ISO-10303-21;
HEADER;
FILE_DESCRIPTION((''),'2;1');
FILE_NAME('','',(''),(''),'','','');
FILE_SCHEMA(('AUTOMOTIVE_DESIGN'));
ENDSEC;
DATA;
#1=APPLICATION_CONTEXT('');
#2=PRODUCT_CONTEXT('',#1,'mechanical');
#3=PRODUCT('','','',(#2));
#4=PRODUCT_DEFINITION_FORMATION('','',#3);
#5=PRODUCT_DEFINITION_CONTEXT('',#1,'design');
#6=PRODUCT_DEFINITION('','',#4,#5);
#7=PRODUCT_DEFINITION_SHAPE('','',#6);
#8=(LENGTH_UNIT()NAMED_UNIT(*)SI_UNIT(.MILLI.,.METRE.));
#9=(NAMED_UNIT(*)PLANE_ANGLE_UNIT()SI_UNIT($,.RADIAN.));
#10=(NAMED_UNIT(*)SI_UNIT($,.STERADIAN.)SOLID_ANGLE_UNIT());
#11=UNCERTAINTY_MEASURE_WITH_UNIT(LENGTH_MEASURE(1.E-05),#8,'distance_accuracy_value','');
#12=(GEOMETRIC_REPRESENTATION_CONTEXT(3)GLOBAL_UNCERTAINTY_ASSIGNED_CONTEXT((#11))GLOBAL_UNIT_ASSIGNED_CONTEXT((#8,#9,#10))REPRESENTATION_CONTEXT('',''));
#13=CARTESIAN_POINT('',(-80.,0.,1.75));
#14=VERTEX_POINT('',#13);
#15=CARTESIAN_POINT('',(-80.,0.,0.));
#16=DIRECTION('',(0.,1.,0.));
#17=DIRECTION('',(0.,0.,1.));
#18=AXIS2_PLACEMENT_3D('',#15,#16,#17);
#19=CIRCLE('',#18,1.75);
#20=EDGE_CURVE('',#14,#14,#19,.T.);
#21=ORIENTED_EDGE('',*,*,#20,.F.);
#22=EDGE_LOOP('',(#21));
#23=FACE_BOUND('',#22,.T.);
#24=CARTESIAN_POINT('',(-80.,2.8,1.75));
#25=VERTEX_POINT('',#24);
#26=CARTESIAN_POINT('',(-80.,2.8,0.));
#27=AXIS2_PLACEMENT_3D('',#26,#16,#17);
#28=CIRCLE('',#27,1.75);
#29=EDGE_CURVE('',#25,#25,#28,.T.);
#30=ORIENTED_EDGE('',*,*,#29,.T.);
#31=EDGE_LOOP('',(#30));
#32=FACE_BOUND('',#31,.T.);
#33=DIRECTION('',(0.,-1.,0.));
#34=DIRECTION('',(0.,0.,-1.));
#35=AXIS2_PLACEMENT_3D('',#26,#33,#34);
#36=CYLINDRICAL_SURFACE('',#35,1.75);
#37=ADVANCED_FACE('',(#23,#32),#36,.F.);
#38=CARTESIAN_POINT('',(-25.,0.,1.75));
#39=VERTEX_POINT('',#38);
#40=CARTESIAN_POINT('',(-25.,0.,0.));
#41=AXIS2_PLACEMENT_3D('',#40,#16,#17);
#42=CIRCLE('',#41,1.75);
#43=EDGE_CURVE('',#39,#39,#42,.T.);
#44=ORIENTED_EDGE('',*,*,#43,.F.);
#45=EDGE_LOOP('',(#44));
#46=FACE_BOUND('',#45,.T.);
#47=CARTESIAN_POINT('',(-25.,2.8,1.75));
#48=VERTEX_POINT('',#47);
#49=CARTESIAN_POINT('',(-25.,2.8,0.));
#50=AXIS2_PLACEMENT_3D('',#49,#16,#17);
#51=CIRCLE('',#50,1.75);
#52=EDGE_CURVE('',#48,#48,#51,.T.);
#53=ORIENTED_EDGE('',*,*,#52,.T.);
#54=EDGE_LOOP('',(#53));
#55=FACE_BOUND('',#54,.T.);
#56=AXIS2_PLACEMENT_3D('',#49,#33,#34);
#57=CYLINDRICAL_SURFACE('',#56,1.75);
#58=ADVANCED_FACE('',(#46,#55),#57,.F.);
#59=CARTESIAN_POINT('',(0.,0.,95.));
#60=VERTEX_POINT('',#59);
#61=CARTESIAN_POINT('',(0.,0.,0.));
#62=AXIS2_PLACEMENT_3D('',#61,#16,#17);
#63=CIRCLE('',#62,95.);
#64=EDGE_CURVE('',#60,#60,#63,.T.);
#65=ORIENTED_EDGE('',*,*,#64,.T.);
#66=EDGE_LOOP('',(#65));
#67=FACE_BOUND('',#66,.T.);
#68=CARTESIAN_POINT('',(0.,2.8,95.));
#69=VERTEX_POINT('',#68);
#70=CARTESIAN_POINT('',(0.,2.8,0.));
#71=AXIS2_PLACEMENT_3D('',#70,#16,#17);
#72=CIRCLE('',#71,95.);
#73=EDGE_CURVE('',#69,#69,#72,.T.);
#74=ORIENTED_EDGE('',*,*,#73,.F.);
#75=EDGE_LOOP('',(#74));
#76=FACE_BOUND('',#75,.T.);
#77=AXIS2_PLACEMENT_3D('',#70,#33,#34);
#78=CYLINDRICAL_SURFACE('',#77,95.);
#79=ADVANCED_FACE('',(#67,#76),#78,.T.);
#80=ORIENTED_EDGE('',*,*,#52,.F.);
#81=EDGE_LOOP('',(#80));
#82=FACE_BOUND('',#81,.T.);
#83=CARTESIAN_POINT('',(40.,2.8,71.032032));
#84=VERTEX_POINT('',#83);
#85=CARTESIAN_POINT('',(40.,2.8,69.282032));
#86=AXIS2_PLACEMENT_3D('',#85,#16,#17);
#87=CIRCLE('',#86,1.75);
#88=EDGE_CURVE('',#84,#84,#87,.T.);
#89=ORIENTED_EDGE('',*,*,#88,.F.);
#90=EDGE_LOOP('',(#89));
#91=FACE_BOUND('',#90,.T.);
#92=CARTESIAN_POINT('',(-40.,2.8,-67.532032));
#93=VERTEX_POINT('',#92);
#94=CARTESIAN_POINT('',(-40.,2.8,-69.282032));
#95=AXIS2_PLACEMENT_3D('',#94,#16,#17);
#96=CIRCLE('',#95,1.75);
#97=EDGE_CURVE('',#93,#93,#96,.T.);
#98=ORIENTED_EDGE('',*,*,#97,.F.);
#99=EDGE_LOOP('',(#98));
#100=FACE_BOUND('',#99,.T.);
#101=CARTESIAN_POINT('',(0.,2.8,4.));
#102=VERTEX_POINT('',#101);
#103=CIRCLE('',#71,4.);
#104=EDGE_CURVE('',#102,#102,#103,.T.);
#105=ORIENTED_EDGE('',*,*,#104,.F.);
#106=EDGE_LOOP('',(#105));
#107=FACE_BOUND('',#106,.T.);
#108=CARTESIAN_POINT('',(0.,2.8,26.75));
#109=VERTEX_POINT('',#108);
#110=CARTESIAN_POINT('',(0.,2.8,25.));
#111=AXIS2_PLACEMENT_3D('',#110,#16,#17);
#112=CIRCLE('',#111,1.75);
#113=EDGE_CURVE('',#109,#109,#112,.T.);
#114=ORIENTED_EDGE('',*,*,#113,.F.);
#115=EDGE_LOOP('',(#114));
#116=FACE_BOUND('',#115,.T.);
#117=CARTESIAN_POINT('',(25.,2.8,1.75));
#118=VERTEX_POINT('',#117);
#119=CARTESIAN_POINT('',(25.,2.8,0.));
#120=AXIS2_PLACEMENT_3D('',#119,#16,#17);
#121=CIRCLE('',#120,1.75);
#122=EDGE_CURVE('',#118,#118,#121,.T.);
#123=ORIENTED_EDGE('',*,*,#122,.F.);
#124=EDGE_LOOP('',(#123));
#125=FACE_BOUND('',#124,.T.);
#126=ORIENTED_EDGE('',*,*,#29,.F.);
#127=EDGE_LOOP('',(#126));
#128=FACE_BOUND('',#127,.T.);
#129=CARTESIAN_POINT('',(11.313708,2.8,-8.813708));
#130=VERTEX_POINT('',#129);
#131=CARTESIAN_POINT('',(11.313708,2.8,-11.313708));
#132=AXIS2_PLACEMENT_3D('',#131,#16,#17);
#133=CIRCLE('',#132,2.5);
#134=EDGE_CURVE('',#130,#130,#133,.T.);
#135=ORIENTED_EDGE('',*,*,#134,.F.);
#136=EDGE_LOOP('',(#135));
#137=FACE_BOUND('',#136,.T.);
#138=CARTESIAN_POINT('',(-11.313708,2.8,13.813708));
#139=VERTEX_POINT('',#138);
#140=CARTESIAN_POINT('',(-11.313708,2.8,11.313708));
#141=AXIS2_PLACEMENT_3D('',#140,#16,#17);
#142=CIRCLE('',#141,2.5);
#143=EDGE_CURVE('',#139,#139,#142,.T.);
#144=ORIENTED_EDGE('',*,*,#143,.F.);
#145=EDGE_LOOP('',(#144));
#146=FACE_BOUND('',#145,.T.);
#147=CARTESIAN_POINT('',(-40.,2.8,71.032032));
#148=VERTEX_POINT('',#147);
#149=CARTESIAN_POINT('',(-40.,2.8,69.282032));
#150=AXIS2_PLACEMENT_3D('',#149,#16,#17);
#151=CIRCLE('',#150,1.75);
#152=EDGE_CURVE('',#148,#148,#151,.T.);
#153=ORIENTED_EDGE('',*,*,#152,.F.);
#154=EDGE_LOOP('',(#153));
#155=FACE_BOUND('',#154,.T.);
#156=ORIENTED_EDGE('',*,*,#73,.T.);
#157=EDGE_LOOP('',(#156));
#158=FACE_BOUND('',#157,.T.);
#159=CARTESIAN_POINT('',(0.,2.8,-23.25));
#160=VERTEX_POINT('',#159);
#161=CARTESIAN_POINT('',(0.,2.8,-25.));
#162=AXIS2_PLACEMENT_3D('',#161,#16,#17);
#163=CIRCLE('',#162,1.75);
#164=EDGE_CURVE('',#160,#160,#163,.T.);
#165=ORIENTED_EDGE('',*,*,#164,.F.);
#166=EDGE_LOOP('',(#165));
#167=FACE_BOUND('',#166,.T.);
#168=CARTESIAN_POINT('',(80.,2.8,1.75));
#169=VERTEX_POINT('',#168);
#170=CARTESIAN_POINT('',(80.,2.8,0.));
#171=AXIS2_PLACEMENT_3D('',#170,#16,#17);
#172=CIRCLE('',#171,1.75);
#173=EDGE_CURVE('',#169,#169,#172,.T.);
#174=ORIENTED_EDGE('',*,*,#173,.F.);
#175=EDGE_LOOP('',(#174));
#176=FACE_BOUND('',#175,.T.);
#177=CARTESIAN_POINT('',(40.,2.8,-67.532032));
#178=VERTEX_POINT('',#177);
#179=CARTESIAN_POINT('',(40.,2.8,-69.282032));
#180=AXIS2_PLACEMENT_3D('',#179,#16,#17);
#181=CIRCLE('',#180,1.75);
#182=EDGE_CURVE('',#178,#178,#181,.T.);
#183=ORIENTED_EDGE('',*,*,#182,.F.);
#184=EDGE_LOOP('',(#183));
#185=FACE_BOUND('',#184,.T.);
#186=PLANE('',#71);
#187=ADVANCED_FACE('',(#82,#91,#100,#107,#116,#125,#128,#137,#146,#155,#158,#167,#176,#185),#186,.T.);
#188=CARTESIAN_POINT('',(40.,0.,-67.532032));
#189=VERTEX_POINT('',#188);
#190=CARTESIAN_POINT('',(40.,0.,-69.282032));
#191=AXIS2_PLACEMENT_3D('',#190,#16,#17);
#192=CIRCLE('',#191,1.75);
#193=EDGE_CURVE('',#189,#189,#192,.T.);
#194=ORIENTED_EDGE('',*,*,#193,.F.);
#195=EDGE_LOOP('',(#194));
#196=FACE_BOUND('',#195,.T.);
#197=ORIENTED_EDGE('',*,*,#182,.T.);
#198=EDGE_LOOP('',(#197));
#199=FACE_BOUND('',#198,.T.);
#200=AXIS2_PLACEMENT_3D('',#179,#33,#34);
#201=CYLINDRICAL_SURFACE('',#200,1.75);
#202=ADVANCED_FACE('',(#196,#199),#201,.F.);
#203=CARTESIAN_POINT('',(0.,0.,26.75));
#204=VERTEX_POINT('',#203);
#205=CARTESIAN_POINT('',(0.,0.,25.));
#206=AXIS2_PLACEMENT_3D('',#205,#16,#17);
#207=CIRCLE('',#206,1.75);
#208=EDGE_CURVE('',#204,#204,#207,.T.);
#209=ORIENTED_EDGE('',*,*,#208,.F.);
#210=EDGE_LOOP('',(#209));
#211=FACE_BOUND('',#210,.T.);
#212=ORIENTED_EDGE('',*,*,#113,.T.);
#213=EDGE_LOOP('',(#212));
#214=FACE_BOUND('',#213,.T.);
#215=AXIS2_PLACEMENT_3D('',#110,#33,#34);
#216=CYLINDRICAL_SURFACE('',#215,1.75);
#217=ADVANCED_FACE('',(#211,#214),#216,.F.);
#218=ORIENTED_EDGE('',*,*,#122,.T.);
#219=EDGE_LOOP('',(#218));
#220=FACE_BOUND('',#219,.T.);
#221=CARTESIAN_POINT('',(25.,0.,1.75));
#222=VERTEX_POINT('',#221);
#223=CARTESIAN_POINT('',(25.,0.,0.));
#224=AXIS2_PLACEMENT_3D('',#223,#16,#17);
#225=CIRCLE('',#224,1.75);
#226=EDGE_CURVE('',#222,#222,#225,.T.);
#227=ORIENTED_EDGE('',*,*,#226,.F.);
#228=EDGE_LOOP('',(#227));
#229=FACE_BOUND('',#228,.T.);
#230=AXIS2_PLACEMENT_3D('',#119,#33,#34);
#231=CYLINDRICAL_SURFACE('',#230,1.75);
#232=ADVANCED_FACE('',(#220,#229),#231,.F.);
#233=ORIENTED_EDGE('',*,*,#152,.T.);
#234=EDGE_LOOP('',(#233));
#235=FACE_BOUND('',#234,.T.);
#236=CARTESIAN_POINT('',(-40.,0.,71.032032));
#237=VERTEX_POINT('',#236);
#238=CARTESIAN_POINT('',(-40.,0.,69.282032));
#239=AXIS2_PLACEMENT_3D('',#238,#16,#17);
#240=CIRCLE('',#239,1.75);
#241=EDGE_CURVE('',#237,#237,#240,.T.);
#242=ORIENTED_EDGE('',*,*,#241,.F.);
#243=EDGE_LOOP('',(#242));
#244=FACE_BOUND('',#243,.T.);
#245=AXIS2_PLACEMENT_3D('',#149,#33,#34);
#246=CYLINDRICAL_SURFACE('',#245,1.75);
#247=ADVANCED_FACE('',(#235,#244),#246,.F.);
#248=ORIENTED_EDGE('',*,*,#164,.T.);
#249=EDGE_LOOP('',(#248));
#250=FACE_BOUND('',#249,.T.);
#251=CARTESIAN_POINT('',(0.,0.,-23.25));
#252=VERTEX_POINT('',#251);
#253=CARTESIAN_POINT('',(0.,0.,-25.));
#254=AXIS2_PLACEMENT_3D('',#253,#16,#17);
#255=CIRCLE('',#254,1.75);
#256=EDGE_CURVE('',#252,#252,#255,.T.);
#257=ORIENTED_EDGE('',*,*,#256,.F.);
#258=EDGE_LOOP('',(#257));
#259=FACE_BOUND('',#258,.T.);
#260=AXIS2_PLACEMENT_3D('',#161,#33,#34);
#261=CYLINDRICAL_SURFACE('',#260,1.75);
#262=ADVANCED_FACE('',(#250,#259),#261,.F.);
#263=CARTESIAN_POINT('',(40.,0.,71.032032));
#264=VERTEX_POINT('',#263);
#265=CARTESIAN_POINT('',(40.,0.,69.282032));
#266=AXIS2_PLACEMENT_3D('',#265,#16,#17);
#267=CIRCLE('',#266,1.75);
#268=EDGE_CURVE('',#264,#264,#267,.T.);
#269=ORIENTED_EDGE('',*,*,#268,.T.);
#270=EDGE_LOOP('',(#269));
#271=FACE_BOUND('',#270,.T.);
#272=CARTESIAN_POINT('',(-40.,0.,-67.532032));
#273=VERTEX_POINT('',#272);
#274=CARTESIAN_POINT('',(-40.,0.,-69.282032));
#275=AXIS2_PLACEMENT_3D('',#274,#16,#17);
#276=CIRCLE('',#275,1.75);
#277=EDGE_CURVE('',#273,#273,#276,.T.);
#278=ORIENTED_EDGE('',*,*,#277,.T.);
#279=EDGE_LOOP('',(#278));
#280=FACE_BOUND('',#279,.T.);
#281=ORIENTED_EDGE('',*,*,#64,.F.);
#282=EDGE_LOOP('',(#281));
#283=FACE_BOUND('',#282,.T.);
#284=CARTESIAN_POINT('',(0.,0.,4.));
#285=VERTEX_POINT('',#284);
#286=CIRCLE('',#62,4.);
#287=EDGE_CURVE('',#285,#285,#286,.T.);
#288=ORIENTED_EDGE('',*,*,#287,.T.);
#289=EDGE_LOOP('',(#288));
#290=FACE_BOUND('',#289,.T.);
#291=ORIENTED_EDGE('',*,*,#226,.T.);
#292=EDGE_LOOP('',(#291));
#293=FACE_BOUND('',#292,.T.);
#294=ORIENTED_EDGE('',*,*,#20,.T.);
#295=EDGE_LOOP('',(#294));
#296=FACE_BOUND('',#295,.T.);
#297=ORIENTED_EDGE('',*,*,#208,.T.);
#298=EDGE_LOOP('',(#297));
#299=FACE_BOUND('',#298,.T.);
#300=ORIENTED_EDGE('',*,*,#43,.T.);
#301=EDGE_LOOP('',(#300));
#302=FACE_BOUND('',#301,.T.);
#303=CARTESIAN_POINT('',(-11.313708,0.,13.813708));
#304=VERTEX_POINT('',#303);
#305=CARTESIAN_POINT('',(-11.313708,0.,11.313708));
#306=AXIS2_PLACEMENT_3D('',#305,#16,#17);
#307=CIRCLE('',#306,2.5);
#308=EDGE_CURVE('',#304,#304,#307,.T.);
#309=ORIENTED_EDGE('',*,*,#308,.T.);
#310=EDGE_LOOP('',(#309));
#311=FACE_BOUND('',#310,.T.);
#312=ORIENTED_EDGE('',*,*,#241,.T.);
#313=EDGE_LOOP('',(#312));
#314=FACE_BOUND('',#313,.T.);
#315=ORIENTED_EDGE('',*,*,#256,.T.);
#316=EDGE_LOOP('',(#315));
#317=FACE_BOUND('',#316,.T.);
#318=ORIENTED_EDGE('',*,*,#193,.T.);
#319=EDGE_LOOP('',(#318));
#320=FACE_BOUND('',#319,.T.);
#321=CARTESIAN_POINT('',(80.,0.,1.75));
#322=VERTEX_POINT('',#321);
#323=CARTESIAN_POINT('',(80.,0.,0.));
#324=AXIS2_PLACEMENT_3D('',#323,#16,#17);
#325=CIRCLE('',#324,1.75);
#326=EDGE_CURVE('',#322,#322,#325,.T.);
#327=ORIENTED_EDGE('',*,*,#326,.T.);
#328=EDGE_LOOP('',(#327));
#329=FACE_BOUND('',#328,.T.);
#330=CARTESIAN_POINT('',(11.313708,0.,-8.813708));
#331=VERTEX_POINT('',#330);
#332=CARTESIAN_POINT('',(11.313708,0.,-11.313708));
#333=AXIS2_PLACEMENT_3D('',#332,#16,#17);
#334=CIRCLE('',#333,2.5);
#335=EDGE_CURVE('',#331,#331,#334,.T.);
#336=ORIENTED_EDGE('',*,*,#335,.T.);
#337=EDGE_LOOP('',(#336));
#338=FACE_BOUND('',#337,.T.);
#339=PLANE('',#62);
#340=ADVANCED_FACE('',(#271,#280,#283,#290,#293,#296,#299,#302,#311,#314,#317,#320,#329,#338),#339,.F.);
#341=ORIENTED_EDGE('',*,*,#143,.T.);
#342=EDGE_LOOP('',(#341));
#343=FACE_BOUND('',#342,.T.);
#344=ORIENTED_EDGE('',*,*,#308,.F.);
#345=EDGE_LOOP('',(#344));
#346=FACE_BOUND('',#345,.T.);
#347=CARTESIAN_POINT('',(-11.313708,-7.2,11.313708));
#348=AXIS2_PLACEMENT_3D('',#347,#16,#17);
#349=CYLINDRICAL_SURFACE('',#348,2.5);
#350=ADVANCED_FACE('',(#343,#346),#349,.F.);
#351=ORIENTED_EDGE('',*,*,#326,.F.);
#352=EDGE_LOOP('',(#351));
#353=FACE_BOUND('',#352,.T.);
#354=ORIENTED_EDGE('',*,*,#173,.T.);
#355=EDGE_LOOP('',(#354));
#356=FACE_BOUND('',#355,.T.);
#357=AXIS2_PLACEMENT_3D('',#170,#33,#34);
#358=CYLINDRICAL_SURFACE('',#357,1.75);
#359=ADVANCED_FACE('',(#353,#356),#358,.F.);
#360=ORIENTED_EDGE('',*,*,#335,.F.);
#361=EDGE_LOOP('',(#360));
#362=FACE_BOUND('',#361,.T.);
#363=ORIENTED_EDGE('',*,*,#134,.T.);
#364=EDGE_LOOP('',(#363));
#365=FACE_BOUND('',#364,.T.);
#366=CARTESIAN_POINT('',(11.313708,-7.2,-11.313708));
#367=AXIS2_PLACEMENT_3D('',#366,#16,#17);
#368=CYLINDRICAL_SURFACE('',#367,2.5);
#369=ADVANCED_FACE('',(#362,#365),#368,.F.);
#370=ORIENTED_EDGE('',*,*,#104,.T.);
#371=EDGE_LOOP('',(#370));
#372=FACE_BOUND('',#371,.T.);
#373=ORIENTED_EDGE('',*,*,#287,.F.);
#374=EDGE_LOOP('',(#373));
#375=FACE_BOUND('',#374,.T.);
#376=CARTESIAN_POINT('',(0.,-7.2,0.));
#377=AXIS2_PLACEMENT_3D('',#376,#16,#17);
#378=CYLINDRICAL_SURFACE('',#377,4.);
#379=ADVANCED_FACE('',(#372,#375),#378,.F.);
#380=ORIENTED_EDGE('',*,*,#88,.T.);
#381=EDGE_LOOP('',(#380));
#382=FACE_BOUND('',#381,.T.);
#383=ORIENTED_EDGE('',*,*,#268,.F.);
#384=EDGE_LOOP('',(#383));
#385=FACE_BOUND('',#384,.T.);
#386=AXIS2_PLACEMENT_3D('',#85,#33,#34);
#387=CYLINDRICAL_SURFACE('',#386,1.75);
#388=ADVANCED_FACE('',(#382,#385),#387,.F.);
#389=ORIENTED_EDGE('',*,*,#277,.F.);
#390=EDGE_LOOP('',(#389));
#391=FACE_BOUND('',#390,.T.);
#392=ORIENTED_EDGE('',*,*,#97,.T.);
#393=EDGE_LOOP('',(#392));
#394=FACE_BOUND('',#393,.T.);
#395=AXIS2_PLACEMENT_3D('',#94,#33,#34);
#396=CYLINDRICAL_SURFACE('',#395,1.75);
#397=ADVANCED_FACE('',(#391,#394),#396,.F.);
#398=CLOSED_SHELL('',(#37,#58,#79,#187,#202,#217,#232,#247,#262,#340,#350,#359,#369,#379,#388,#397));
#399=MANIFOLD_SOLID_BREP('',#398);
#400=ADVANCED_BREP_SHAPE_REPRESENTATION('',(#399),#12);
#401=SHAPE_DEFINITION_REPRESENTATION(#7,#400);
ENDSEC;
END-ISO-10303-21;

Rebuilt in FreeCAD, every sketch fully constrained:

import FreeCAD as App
import Part
import Sketcher
Q = App.Units.Quantity

doc = App.newDocument("Part")
body = doc.addObject("PartDesign::Body", "Body")

# Sketch on XZ plane
sketch1 = body.newObject("Sketcher::SketchObject", "Sketch")
sketch1.AttachmentSupport = (doc.getObject("XZ_Plane"), [""])
sketch1.MapMode = "FlatFace"
sketch1.addGeometry(Part.Circle(App.Vector(0, 0, 0), App.Vector(0, 0, 1), 95), False)
sketch1.addGeometry(Part.Circle(App.Vector(-40, -69.282032, 0), App.Vector(0, 0, 1), 1.75), False)
sketch1.addGeometry(Part.Circle(App.Vector(-80, 0, 0), App.Vector(0, 0, 1), 1.75), False)
sketch1.addGeometry(Part.Circle(App.Vector(-25, 0, 0), App.Vector(0, 0, 1), 1.75), False)
sketch1.addGeometry(Part.Circle(App.Vector(-40, 69.282032, 0), App.Vector(0, 0, 1), 1.75), False)
sketch1.addGeometry(Part.Circle(App.Vector(40, -69.282032, 0), App.Vector(0, 0, 1), 1.75), False)
sketch1.addGeometry(Part.Circle(App.Vector(0, -25, 0), App.Vector(0, 0, 1), 1.75), False)
sketch1.addGeometry(Part.Circle(App.Vector(80, 0, 0), App.Vector(0, 0, 1), 1.75), False)
sketch1.addGeometry(Part.Circle(App.Vector(0, 25, 0), App.Vector(0, 0, 1), 1.75), False)
sketch1.addGeometry(Part.Circle(App.Vector(25, 0, 0), App.Vector(0, 0, 1), 1.75), False)
sketch1.addGeometry(Part.Circle(App.Vector(40, 69.282032, 0), App.Vector(0, 0, 1), 1.75), False)
sketch1.addConstraint(Sketcher.Constraint("Coincident", 0, 3, -1, 1))
sketch1.addConstraint(Sketcher.Constraint("Equal", 1, 2))
sketch1.addConstraint(Sketcher.Constraint("Equal", 2, 3))
sketch1.addConstraint(Sketcher.Constraint("Equal", 3, 4))
sketch1.addConstraint(Sketcher.Constraint("Equal", 4, 5))
sketch1.addConstraint(Sketcher.Constraint("Equal", 5, 6))
sketch1.addConstraint(Sketcher.Constraint("Equal", 6, 7))
sketch1.addConstraint(Sketcher.Constraint("Equal", 7, 8))
sketch1.addConstraint(Sketcher.Constraint("Equal", 8, 9))
sketch1.addConstraint(Sketcher.Constraint("Equal", 9, 10))
sketch1.addConstraint(Sketcher.Constraint("Symmetric", 4, 3, 5, 3, -1, 1))
sketch1.addConstraint(Sketcher.Constraint("Symmetric", 2, 3, 7, 3, -1, 1))
sketch1.addConstraint(Sketcher.Constraint("Symmetric", 6, 3, 8, 3, -1, 1))
sketch1.addConstraint(Sketcher.Constraint("Symmetric", 3, 3, 9, 3, -1, 1))
sketch1.addConstraint(Sketcher.Constraint("Symmetric", 1, 3, 10, 3, -1, 1))
sketch1.addConstraint(Sketcher.Constraint("Symmetric", 1, 3, 5, 3, -2))
sketch1.addConstraint(Sketcher.Constraint("PointOnObject", 2, 3, -1))
sketch1.addConstraint(Sketcher.Constraint("PointOnObject", 3, 3, -1))
sketch1.addConstraint(Sketcher.Constraint("PointOnObject", 6, 3, -2))
sketch1.addConstraint(Sketcher.Constraint("Diameter", 0, Q("190 mm")))
sketch1.addConstraint(Sketcher.Constraint("Diameter", 1, Q("3.5 mm")))
sketch1.addConstraint(Sketcher.Constraint("DistanceX", 1, 3, -1, 1, Q("40 mm")))
sketch1.addConstraint(Sketcher.Constraint("DistanceX", 2, 3, -1, 1, Q("80 mm")))
sketch1.addConstraint(Sketcher.Constraint("DistanceX", 3, 3, -1, 1, Q("25 mm")))
sketch1.addConstraint(Sketcher.Constraint("DistanceY", 6, 3, -1, 1, Q("25 mm")))
sketch1.addConstraint(Sketcher.Constraint("DistanceY", 1, 3, -1, 1, Q("69.282032 mm")))
pad1 = body.newObject("PartDesign::Pad", "Pad")
pad1.Profile = sketch1
pad1.Length = 2.8
pad1.Reversed = True

# Sketch on XZ plane
sketch2 = body.newObject("Sketcher::SketchObject", "Sketch001")
sketch2.AttachmentSupport = (doc.getObject("XZ_Plane"), [""])
sketch2.MapMode = "FlatFace"
sketch2.AttachmentOffset = App.Placement(App.Vector(0, 0, -2.8), App.Rotation())
sketch2.addGeometry(Part.Circle(App.Vector(0, 0, 0), App.Vector(0, 0, 1), 4), False)
sketch2.addGeometry(Part.Circle(App.Vector(11.313708, -11.313708, 0), App.Vector(0, 0, 1), 2.5), False)
sketch2.addGeometry(Part.Circle(App.Vector(-11.313708, 11.313708, 0), App.Vector(0, 0, 1), 2.5), False)
sketch2.addConstraint(Sketcher.Constraint("Coincident", 0, 3, -1, 1))
sketch2.addConstraint(Sketcher.Constraint("Equal", 1, 2))
sketch2.addConstraint(Sketcher.Constraint("Symmetric", 1, 3, 2, 3, -1, 1))
sketch2.addConstraint(Sketcher.Constraint("Diameter", 0, Q("8 mm")))
sketch2.addConstraint(Sketcher.Constraint("Diameter", 1, Q("5 mm")))
sketch2.addConstraint(Sketcher.Constraint("DistanceX", -1, 1, 1, 3, Q("11.313708 mm")))
sketch2.addConstraint(Sketcher.Constraint("DistanceY", 1, 3, -1, 1, Q("11.313708 mm")))
pocket1 = body.newObject("PartDesign::Pocket", "Pocket")
pocket1.Profile = sketch2
pocket1.Length = 10
pocket1.Reversed = True

doc.recompute()
